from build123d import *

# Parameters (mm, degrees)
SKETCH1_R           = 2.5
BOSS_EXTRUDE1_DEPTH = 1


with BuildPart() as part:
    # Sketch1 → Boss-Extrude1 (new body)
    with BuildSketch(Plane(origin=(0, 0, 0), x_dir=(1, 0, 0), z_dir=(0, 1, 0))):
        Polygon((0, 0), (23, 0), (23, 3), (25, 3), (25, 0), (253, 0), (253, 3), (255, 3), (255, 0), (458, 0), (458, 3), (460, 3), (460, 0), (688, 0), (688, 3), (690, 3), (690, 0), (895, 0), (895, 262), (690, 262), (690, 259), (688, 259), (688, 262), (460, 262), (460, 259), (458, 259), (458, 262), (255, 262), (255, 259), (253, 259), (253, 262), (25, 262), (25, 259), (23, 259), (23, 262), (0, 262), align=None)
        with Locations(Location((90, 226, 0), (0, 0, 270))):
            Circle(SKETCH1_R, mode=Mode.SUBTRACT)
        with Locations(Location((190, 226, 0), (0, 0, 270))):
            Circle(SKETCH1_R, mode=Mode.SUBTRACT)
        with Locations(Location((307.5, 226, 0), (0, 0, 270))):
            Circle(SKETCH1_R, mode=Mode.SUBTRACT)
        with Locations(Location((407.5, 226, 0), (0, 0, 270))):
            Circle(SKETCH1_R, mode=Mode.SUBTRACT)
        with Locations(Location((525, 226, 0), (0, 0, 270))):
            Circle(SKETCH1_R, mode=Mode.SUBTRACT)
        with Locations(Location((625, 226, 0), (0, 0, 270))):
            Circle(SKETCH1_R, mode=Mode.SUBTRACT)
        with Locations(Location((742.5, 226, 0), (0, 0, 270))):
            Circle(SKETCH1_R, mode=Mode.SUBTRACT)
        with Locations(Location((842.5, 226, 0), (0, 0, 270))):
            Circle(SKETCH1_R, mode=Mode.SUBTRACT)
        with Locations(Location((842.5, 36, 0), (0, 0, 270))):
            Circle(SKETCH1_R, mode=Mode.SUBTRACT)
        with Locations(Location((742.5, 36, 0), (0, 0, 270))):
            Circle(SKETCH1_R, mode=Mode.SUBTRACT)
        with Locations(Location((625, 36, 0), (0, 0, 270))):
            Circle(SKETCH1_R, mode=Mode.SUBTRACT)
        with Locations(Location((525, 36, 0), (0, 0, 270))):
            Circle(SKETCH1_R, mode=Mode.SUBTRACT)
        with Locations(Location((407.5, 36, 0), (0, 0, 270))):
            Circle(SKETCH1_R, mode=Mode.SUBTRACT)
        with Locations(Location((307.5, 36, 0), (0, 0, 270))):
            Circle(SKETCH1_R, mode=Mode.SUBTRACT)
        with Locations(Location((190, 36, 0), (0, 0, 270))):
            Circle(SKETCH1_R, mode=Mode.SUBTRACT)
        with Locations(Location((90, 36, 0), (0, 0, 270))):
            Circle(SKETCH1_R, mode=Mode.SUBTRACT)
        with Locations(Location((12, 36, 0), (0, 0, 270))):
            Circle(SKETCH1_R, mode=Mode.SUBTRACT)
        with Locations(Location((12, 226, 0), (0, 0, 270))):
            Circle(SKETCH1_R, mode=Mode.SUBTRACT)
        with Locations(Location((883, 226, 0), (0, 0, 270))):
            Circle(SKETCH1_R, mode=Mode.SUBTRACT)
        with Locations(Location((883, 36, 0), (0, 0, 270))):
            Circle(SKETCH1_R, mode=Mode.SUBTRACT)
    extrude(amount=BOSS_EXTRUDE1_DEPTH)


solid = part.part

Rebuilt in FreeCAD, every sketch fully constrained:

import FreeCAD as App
import Part
import Sketcher
Q = App.Units.Quantity

doc = App.newDocument("Part")
body = doc.addObject("PartDesign::Body", "Body")

sketch1 = body.newObject("Sketcher::SketchObject", "Sketch")
sketch1.AttachmentSupport = (doc.getObject("XZ_Plane"), [""])
sketch1.MapMode = "FlatFace"
sketch1.addGeometry([
    Part.LineSegment(App.Vector(0, 0, 0), App.Vector(23, 0, 0)),
    Part.LineSegment(App.Vector(23, 0, 0), App.Vector(23, -3, 0)),
    Part.LineSegment(App.Vector(23, -3, 0), App.Vector(25, -3, 0)),
    Part.LineSegment(App.Vector(25, -3, 0), App.Vector(25, 0, 0)),
    Part.LineSegment(App.Vector(25, 0, 0), App.Vector(253, 0, 0)),
    Part.LineSegment(App.Vector(253, 0, 0), App.Vector(253, -3, 0)),
    Part.LineSegment(App.Vector(253, -3, 0), App.Vector(255, -3, 0)),
    Part.LineSegment(App.Vector(255, -3, 0), App.Vector(255, 0, 0)),
    Part.LineSegment(App.Vector(255, 0, 0), App.Vector(458, 0, 0)),
    Part.LineSegment(App.Vector(458, 0, 0), App.Vector(458, -3, 0)),
    Part.LineSegment(App.Vector(458, -3, 0), App.Vector(460, -3, 0)),
    Part.LineSegment(App.Vector(460, -3, 0), App.Vector(460, 0, 0)),
    Part.LineSegment(App.Vector(460, 0, 0), App.Vector(688, 0, 0)),
    Part.LineSegment(App.Vector(688, 0, 0), App.Vector(688, -3, 0)),
    Part.LineSegment(App.Vector(688, -3, 0), App.Vector(690, -3, 0)),
    Part.LineSegment(App.Vector(690, -3, 0), App.Vector(690, 0, 0)),
    Part.LineSegment(App.Vector(690, 0, 0), App.Vector(895, 0, 0)),
    Part.LineSegment(App.Vector(895, 0, 0), App.Vector(895, -262, 0)),
    Part.LineSegment(App.Vector(895, -262, 0), App.Vector(690, -262, 0)),
    Part.LineSegment(App.Vector(690, -262, 0), App.Vector(690, -259, 0)),
    Part.LineSegment(App.Vector(690, -259, 0), App.Vector(688, -259, 0)),
    Part.LineSegment(App.Vector(688, -259, 0), App.Vector(688, -262, 0)),
    Part.LineSegment(App.Vector(688, -262, 0), App.Vector(460, -262, 0)),
    Part.LineSegment(App.Vector(460, -262, 0), App.Vector(460, -259, 0)),
    Part.LineSegment(App.Vector(460, -259, 0), App.Vector(458, -259, 0)),
    Part.LineSegment(App.Vector(458, -259, 0), App.Vector(458, -262, 0)),
    Part.LineSegment(App.Vector(458, -262, 0), App.Vector(255, -262, 0)),
    Part.LineSegment(App.Vector(255, -262, 0), App.Vector(255, -259, 0)),
    Part.LineSegment(App.Vector(255, -259, 0), App.Vector(253, -259, 0)),
    Part.LineSegment(App.Vector(253, -259, 0), App.Vector(253, -262, 0)),
    Part.LineSegment(App.Vector(253, -262, 0), App.Vector(25, -262, 0)),
    Part.LineSegment(App.Vector(25, -262, 0), App.Vector(25, -259, 0)),
    Part.LineSegment(App.Vector(25, -259, 0), App.Vector(23, -259, 0)),
    Part.LineSegment(App.Vector(23, -259, 0), App.Vector(23, -262, 0)),
    Part.LineSegment(App.Vector(23, -262, 0), App.Vector(0, -262, 0)),
    Part.LineSegment(App.Vector(0, -262, 0), App.Vector(0, 0, 0)),
    Part.Circle(App.Vector(12, -36, 0), App.Vector(0, 0, 1), 2.5),
    Part.Circle(App.Vector(90, -36, 0), App.Vector(0, 0, 1), 2.5),
    Part.Circle(App.Vector(190, -36, 0), App.Vector(0, 0, 1), 2.5),
    Part.Circle(App.Vector(307.5, -36, 0), App.Vector(0, 0, 1), 2.5),
    Part.Circle(App.Vector(407.5, -36, 0), App.Vector(0, 0, 1), 2.5),
    Part.Circle(App.Vector(525, -36, 0), App.Vector(0, 0, 1), 2.5),
    Part.Circle(App.Vector(625, -36, 0), App.Vector(0, 0, 1), 2.5),
    Part.Circle(App.Vector(742.5, -36, 0), App.Vector(0, 0, 1), 2.5),
    Part.Circle(App.Vector(842.5, -36, 0), App.Vector(0, 0, 1), 2.5),
    Part.Circle(App.Vector(883, -36, 0), App.Vector(0, 0, 1), 2.5),
    Part.Circle(App.Vector(12, -226, 0), App.Vector(0, 0, 1), 2.5),
    Part.Circle(App.Vector(90, -226, 0), App.Vector(0, 0, 1), 2.5),
    Part.Circle(App.Vector(190, -226, 0), App.Vector(0, 0, 1), 2.5),
    Part.Circle(App.Vector(307.5, -226, 0), App.Vector(0, 0, 1), 2.5),
    Part.Circle(App.Vector(407.5, -226, 0), App.Vector(0, 0, 1), 2.5),
    Part.Circle(App.Vector(525, -226, 0), App.Vector(0, 0, 1), 2.5),
    Part.Circle(App.Vector(625, -226, 0), App.Vector(0, 0, 1), 2.5),
    Part.Circle(App.Vector(742.5, -226, 0), App.Vector(0, 0, 1), 2.5),
    Part.Circle(App.Vector(842.5, -226, 0), App.Vector(0, 0, 1), 2.5),
    Part.Circle(App.Vector(883, -226, 0), App.Vector(0, 0, 1), 2.5),
], False)
sketch1.addConstraint([
    Sketcher.Constraint("Coincident", 0, 2, 1, 1),
    Sketcher.Constraint("Coincident", 1, 2, 2, 1),
    Sketcher.Constraint("Coincident", 2, 2, 3, 1),
    Sketcher.Constraint("Coincident", 3, 2, 4, 1),
    Sketcher.Constraint("Coincident", 4, 2, 5, 1),
    Sketcher.Constraint("Coincident", 5, 2, 6, 1),
    Sketcher.Constraint("Coincident", 6, 2, 7, 1),
    Sketcher.Constraint("Coincident", 7, 2, 8, 1),
    Sketcher.Constraint("Coincident", 8, 2, 9, 1),
    Sketcher.Constraint("Coincident", 9, 2, 10, 1),
    Sketcher.Constraint("Coincident", 10, 2, 11, 1),
    Sketcher.Constraint("Coincident", 11, 2, 12, 1),
    Sketcher.Constraint("Coincident", 12, 2, 13, 1),
    Sketcher.Constraint("Coincident", 13, 2, 14, 1),
    Sketcher.Constraint("Coincident", 14, 2, 15, 1),
    Sketcher.Constraint("Coincident", 15, 2, 16, 1),
    Sketcher.Constraint("Coincident", 16, 2, 17, 1),
    Sketcher.Constraint("Coincident", 17, 2, 18, 1),
    Sketcher.Constraint("Coincident", 18, 2, 19, 1),
    Sketcher.Constraint("Coincident", 19, 2, 20, 1),
    Sketcher.Constraint("Coincident", 20, 2, 21, 1),
    Sketcher.Constraint("Coincident", 21, 2, 22, 1),
    Sketcher.Constraint("Coincident", 22, 2, 23, 1),
    Sketcher.Constraint("Coincident", 23, 2, 24, 1),
    Sketcher.Constraint("Coincident", 24, 2, 25, 1),
    Sketcher.Constraint("Coincident", 25, 2, 26, 1),
    Sketcher.Constraint("Coincident", 26, 2, 27, 1),
    Sketcher.Constraint("Coincident", 27, 2, 28, 1),
    Sketcher.Constraint("Coincident", 28, 2, 29, 1),
    Sketcher.Constraint("Coincident", 29, 2, 30, 1),
    Sketcher.Constraint("Coincident", 30, 2, 31, 1),
    Sketcher.Constraint("Coincident", 31, 2, 32, 1),
    Sketcher.Constraint("Coincident", 32, 2, 33, 1),
    Sketcher.Constraint("Coincident", 33, 2, 34, 1),
    Sketcher.Constraint("Coincident", 34, 2, 35, 1),
    Sketcher.Constraint("Coincident", 35, 2, 0, 1),
    Sketcher.Constraint("Horizontal", 0),
    Sketcher.Constraint("Vertical", 1),
    Sketcher.Constraint("Horizontal", 2),
    Sketcher.Constraint("Vertical", 3),
    Sketcher.Constraint("Horizontal", 4),
    Sketcher.Constraint("Vertical", 5),
    Sketcher.Constraint("Horizontal", 6),
    Sketcher.Constraint("Vertical", 7),
    Sketcher.Constraint("Horizontal", 8),
    Sketcher.Constraint("Vertical", 9),
    Sketcher.Constraint("Horizontal", 10),
    Sketcher.Constraint("Vertical", 11),
    Sketcher.Constraint("Horizontal", 12),
    Sketcher.Constraint("Vertical", 13),
    Sketcher.Constraint("Horizontal", 14),
    Sketcher.Constraint("Vertical", 15),
    Sketcher.Constraint("Horizontal", 16),
    Sketcher.Constraint("Vertical", 17),
    Sketcher.Constraint("Horizontal", 18),
    Sketcher.Constraint("Vertical", 19),
    Sketcher.Constraint("Horizontal", 20),
    Sketcher.Constraint("Vertical", 21),
    Sketcher.Constraint("Horizontal", 22),
    Sketcher.Constraint("Vertical", 23),
    Sketcher.Constraint("Horizontal", 24),
    Sketcher.Constraint("Vertical", 25),
    Sketcher.Constraint("Horizontal", 26),
    Sketcher.Constraint("Vertical", 27),
    Sketcher.Constraint("Horizontal", 28),
    Sketcher.Constraint("Vertical", 29),
    Sketcher.Constraint("Horizontal", 30),
    Sketcher.Constraint("Vertical", 31),
    Sketcher.Constraint("Horizontal", 32),
    Sketcher.Constraint("Vertical", 33),
    Sketcher.Constraint("Horizontal", 34),
    Sketcher.Constraint("Vertical", 35),
    Sketcher.Constraint("Coincident", 35, 2, -1, 1),
    Sketcher.Constraint("Equal", 36, 37),
    Sketcher.Constraint("Equal", 37, 38),
    Sketcher.Constraint("Equal", 38, 39),
    Sketcher.Constraint("Equal", 39, 40),
    Sketcher.Constraint("Equal", 40, 41),
    Sketcher.Constraint("Equal", 41, 42),
    Sketcher.Constraint("Equal", 42, 43),
    Sketcher.Constraint("Equal", 43, 44),
    Sketcher.Constraint("Equal", 44, 45),
    Sketcher.Constraint("Equal", 45, 46),
    Sketcher.Constraint("Equal", 46, 47),
    Sketcher.Constraint("Equal", 47, 48),
    Sketcher.Constraint("Equal", 48, 49),
    Sketcher.Constraint("Equal", 49, 50),
    Sketcher.Constraint("Equal", 50, 51),
    Sketcher.Constraint("Equal", 51, 52),
    Sketcher.Constraint("Equal", 52, 53),
    Sketcher.Constraint("Equal", 53, 54),
    Sketcher.Constraint("Equal", 54, 55),
    Sketcher.Constraint("PointOnObject", 3, 2, -1),
    Sketcher.Constraint("PointOnObject", 7, 2, -1),
    Sketcher.Constraint("PointOnObject", 11, 2, -1),
    Sketcher.Constraint("PointOnObject", 15, 2, -1),
    Sketcher.Constraint("Horizontal", 36, 3, 37, 3),
    Sketcher.Constraint("Horizontal", 37, 3, 38, 3),
    Sketcher.Constraint("Horizontal", 38, 3, 39, 3),
    Sketcher.Constraint("Horizontal", 39, 3, 40, 3),
    Sketcher.Constraint("Horizontal", 40, 3, 41, 3),
    Sketcher.Constraint("Horizontal", 41, 3, 42, 3),
    Sketcher.Constraint("Horizontal", 42, 3, 43, 3),
    Sketcher.Constraint("Horizontal", 43, 3, 44, 3),
    Sketcher.Constraint("Horizontal", 44, 3, 45, 3),
    Sketcher.Constraint("Horizontal", 46, 3, 47, 3),
    Sketcher.Constraint("Horizontal", 47, 3, 48, 3),
    Sketcher.Constraint("Horizontal", 48, 3, 49, 3),
    Sketcher.Constraint("Horizontal", 49, 3, 50, 3),
    Sketcher.Constraint("Horizontal", 50, 3, 51, 3),
    Sketcher.Constraint("Horizontal", 51, 3, 52, 3),
    Sketcher.Constraint("Horizontal", 52, 3, 53, 3),
    Sketcher.Constraint("Horizontal", 53, 3, 54, 3),
    Sketcher.Constraint("Horizontal", 54, 3, 55, 3),
    Sketcher.Constraint("Horizontal", 2, 2, 5, 2),
    Sketcher.Constraint("Horizontal", 6, 2, 9, 2),
    Sketcher.Constraint("Horizontal", 10, 2, 13, 2),
    Sketcher.Constraint("Horizontal", 18, 2, 21, 2),
    Sketcher.Constraint("Horizontal", 20, 2, 23, 2),
    Sketcher.Constraint("Horizontal", 22, 2, 25, 2),
    Sketcher.Constraint("Horizontal", 24, 2, 27, 2),
    Sketcher.Constraint("Horizontal", 26, 2, 29, 2),
    Sketcher.Constraint("Horizontal", 28, 2, 31, 2),
    Sketcher.Constraint("Horizontal", 30, 2, 33, 2),
    Sketcher.Constraint("Vertical", 36, 3, 46, 3),
    Sketcher.Constraint("Vertical", 37, 3, 47, 3),
    Sketcher.Constraint("Vertical", 38, 3, 48, 3),
    Sketcher.Constraint("Vertical", 39, 3, 49, 3),
    Sketcher.Constraint("Vertical", 40, 3, 50, 3),
    Sketcher.Constraint("Vertical", 41, 3, 51, 3),
    Sketcher.Constraint("Vertical", 42, 3, 52, 3),
    Sketcher.Constraint("Vertical", 43, 3, 53, 3),
    Sketcher.Constraint("Vertical", 44, 3, 54, 3),
    Sketcher.Constraint("Vertical", 45, 3, 55, 3),
    Sketcher.Constraint("Vertical", 15, 2, 18, 2),
    Sketcher.Constraint("Vertical", 13, 2, 20, 2),
    Sketcher.Constraint("Vertical", 11, 2, 22, 2),
    Sketcher.Constraint("Vertical", 9, 2, 24, 2),
    Sketcher.Constraint("Vertical", 7, 2, 26, 2),
    Sketcher.Constraint("Vertical", 5, 2, 28, 2),
    Sketcher.Constraint("Vertical", 3, 2, 30, 2),
    Sketcher.Constraint("Vertical", 1, 2, 32, 2),
    Sketcher.Constraint("Equal", 2, 6),
    Sketcher.Constraint("Equal", 6, 10),
    Sketcher.Constraint("Equal", 4, 12),
    Sketcher.Constraint("Equal", 10, 14),
    Sketcher.Constraint("Equal", 15, 19),
    Sketcher.Constraint("Diameter", 36, Q("5 mm")),
    Sketcher.Constraint("DistanceX", 0, 1, 0, 2, Q("23 mm")),
    Sketcher.Constraint("DistanceX", 2, 1, 2, 2, Q("2 mm")),
    Sketcher.Constraint("DistanceX", 4, 1, 4, 2, Q("228 mm")),
    Sketcher.Constraint("DistanceX", 8, 1, 8, 2, Q("203 mm")),
    Sketcher.Constraint("DistanceX", 16, 1, 16, 2, Q("205 mm")),
    Sketcher.Constraint("DistanceY", 1, 2, 1, 1, Q("3 mm")),
    Sketcher.Constraint("DistanceY", 17, 2, 17, 1, Q("262 mm")),
    Sketcher.Constraint("DistanceX", -1, 1, 36, 3, Q("12 mm")),
    Sketcher.Constraint("DistanceY", 36, 3, -1, 1, Q("36 mm")),
    Sketcher.Constraint("DistanceX", -1, 1, 37, 3, Q("90 mm")),
    Sketcher.Constraint("DistanceX", -1, 1, 38, 3, Q("190 mm")),
    Sketcher.Constraint("DistanceX", -1, 1, 41, 3, Q("525 mm")),
    Sketcher.Constraint("DistanceX", -1, 1, 42, 3, Q("625 mm")),
    Sketcher.Constraint("DistanceX", -1, 1, 45, 3, Q("883 mm")),
    Sketcher.Constraint("DistanceY", 46, 3, -1, 1, Q("226 mm")),
    Sketcher.Constraint("DistanceX", 39, 3, 40, 3, Q("100 mm")),
    Sketcher.Constraint("DistanceX", 40, 3, 43, 3, Q("335 mm")),
    Sketcher.Constraint("DistanceX", 43, 3, 44, 3, Q("100 mm")),
    Sketcher.Constraint("DistanceX", -1, 1, 39, 3, Q("307.5 mm")),
])
pad1 = body.newObject("PartDesign::Pad", "Pad")
pad1.Profile = sketch1
pad1.Length = 1
pad1.Reversed = True

doc.recompute()
